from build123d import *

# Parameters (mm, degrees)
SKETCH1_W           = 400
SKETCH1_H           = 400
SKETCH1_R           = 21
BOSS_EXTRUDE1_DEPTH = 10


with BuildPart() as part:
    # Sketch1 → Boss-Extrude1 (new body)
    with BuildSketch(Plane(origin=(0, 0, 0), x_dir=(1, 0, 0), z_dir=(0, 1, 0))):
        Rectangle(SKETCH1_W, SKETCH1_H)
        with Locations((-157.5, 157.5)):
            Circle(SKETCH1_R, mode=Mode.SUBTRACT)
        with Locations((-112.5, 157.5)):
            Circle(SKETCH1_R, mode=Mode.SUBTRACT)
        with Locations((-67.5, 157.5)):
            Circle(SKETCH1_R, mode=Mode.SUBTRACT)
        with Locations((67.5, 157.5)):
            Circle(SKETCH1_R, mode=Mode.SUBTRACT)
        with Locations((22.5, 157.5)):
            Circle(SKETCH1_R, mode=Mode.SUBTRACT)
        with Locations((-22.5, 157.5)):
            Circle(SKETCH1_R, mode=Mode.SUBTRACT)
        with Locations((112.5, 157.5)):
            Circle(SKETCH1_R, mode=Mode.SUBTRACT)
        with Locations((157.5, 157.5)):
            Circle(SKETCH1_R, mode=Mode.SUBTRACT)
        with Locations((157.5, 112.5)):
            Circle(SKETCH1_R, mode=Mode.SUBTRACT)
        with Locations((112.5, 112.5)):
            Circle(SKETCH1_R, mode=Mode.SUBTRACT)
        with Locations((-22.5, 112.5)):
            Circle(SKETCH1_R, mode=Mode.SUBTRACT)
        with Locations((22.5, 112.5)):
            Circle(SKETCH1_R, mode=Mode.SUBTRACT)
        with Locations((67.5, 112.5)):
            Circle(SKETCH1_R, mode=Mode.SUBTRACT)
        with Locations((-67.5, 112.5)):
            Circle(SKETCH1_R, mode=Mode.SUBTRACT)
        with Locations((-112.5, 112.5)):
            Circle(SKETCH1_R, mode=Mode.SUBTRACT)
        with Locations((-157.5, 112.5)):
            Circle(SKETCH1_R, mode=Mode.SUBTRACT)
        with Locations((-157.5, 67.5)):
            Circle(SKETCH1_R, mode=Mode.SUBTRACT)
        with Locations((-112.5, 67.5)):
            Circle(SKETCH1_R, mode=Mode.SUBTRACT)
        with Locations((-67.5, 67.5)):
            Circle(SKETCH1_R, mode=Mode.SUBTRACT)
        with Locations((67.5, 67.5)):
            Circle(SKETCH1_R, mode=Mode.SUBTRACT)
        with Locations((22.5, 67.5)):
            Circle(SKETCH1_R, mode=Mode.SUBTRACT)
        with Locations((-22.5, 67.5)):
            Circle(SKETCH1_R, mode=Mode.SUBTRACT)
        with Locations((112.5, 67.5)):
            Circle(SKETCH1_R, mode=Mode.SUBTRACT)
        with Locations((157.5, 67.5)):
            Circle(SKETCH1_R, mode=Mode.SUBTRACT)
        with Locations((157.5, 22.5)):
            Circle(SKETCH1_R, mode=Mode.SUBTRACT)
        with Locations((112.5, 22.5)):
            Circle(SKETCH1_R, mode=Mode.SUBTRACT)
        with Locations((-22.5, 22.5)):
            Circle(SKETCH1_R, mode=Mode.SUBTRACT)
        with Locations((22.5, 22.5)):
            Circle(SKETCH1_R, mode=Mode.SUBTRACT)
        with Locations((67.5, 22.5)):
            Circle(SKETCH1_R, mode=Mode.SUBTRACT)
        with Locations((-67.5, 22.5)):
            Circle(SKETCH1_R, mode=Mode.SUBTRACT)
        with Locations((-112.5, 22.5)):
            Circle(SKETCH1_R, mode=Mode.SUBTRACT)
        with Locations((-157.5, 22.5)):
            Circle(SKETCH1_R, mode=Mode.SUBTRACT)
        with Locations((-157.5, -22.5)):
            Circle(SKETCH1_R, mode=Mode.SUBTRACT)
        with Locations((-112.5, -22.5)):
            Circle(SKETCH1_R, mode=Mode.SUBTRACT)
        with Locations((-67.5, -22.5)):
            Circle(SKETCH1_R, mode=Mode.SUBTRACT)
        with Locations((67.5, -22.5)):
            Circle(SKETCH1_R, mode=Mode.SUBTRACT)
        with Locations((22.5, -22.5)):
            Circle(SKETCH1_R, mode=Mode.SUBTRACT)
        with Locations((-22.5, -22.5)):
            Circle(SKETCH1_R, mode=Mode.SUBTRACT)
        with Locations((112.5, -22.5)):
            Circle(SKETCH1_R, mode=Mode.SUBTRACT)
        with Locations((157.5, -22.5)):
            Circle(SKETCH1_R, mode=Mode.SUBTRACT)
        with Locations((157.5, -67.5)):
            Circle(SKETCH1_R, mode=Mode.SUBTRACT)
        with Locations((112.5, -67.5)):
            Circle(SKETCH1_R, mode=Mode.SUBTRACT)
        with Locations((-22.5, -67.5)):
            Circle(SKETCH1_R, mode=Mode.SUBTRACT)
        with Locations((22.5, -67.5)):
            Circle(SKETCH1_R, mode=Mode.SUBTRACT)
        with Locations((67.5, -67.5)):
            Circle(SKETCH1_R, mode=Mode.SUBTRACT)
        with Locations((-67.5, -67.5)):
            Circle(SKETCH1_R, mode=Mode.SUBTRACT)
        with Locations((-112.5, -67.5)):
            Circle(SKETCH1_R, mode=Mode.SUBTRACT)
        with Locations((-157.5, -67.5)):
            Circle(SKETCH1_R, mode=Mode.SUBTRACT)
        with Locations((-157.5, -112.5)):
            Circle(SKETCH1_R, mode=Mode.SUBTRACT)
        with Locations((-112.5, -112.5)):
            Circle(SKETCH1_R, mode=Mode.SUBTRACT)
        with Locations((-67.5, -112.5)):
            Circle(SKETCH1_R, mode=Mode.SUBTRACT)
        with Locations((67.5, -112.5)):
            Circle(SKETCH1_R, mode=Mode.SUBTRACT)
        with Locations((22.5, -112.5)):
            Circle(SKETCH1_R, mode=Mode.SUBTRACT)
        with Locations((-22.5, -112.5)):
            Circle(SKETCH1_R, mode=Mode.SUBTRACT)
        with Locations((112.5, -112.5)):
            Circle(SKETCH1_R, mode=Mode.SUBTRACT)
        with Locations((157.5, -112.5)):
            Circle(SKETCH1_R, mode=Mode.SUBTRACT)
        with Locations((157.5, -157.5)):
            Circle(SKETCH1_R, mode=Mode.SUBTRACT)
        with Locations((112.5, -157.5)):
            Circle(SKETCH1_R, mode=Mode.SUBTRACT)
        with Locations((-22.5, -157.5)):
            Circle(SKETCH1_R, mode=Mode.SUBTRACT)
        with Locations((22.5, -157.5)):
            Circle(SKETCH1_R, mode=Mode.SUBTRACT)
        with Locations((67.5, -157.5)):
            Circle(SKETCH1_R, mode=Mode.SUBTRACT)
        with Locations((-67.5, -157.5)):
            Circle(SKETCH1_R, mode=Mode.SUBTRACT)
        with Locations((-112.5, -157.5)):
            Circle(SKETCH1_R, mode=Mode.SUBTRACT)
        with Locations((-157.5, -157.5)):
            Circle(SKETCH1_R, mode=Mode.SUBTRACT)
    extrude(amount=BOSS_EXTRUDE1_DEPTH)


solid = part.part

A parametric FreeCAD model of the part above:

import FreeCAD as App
import Part
import Sketcher


def add_polygon(sketch, points):
    """Adds a closed chain of lines whose ends are joined by coincident constraints."""
    first, n = sketch.GeometryCount, len(points)
    for a, b in zip(points, points[1:] + points[:1]):
        sketch.addGeometry(Part.LineSegment(App.Vector(*a, 0), App.Vector(*b, 0)), False)
    for i in range(n):
        sketch.addConstraint(Sketcher.Constraint("Coincident", first + i, 2, first + (i + 1) % n, 1))

doc = App.newDocument("Part")
body = doc.addObject("PartDesign::Body", "Body")

sketch1 = body.newObject("Sketcher::SketchObject", "Sketch")
sketch1.AttachmentSupport = (doc.getObject("XZ_Plane"), [""])
sketch1.MapMode = "FlatFace"
add_polygon(sketch1, [(-200, -200), (-200, 200), (200, 200), (200, -200)])
sketch1.addGeometry(Part.Circle(App.Vector(-158, 158, 0), App.Vector(0, 0, 1), 21), False)
sketch1.addGeometry(Part.Circle(App.Vector(-112, 158, 0), App.Vector(0, 0, 1), 21), False)
sketch1.addGeometry(Part.Circle(App.Vector(-158, 112, 0), App.Vector(0, 0, 1), 21), False)
sketch1.addGeometry(Part.Circle(App.Vector(-112, 112, 0), App.Vector(0, 0, 1), 21), False)
sketch1.addGeometry(Part.Circle(App.Vector(-68, 158, 0), App.Vector(0, 0, 1), 21), False)
sketch1.addGeometry(Part.Circle(App.Vector(-22, 158, 0), App.Vector(0, 0, 1), 21), False)
sketch1.addGeometry(Part.Circle(App.Vector(-68, 112, 0), App.Vector(0, 0, 1), 21), False)
sketch1.addGeometry(Part.Circle(App.Vector(-22, 112, 0), App.Vector(0, 0, 1), 21), False)
sketch1.addGeometry(Part.Circle(App.Vector(-158, 68, 0), App.Vector(0, 0, 1), 21), False)
sketch1.addGeometry(Part.Circle(App.Vector(-112, 68, 0), App.Vector(0, 0, 1), 21), False)
sketch1.addGeometry(Part.Circle(App.Vector(-158, 22, 0), App.Vector(0, 0, 1), 21), False)
sketch1.addGeometry(Part.Circle(App.Vector(-112, 22, 0), App.Vector(0, 0, 1), 21), False)
sketch1.addGeometry(Part.Circle(App.Vector(-68, 68, 0), App.Vector(0, 0, 1), 21), False)
sketch1.addGeometry(Part.Circle(App.Vector(-22, 68, 0), App.Vector(0, 0, 1), 21), False)
sketch1.addGeometry(Part.Circle(App.Vector(-68, 22, 0), App.Vector(0, 0, 1), 21), False)
sketch1.addGeometry(Part.Circle(App.Vector(-22, 22, 0), App.Vector(0, 0, 1), 21), False)
sketch1.addGeometry(Part.Circle(App.Vector(22, 158, 0), App.Vector(0, 0, 1), 21), False)
sketch1.addGeometry(Part.Circle(App.Vector(68, 158, 0), App.Vector(0, 0, 1), 21), False)
sketch1.addGeometry(Part.Circle(App.Vector(22, 112, 0), App.Vector(0, 0, 1), 21), False)
sketch1.addGeometry(Part.Circle(App.Vector(68, 112, 0), App.Vector(0, 0, 1), 21), False)
sketch1.addGeometry(Part.Circle(App.Vector(112, 158, 0), App.Vector(0, 0, 1), 21), False)
sketch1.addGeometry(Part.Circle(App.Vector(158, 158, 0), App.Vector(0, 0, 1), 21), False)
sketch1.addGeometry(Part.Circle(App.Vector(112, 112, 0), App.Vector(0, 0, 1), 21), False)
sketch1.addGeometry(Part.Circle(App.Vector(158, 112, 0), App.Vector(0, 0, 1), 21), False)
sketch1.addGeometry(Part.Circle(App.Vector(22, 68, 0), App.Vector(0, 0, 1), 21), False)
sketch1.addGeometry(Part.Circle(App.Vector(68, 68, 0), App.Vector(0, 0, 1), 21), False)
sketch1.addGeometry(Part.Circle(App.Vector(22, 22, 0), App.Vector(0, 0, 1), 21), False)
sketch1.addGeometry(Part.Circle(App.Vector(68, 22, 0), App.Vector(0, 0, 1), 21), False)
sketch1.addGeometry(Part.Circle(App.Vector(112, 68, 0), App.Vector(0, 0, 1), 21), False)
sketch1.addGeometry(Part.Circle(App.Vector(158, 68, 0), App.Vector(0, 0, 1), 21), False)
sketch1.addGeometry(Part.Circle(App.Vector(112, 22, 0), App.Vector(0, 0, 1), 21), False)
sketch1.addGeometry(Part.Circle(App.Vector(158, 22, 0), App.Vector(0, 0, 1), 21), False)
sketch1.addGeometry(Part.Circle(App.Vector(-158, -22, 0), App.Vector(0, 0, 1), 21), False)
sketch1.addGeometry(Part.Circle(App.Vector(-112, -22, 0), App.Vector(0, 0, 1), 21), False)
sketch1.addGeometry(Part.Circle(App.Vector(-158, -68, 0), App.Vector(0, 0, 1), 21), False)
sketch1.addGeometry(Part.Circle(App.Vector(-112, -68, 0), App.Vector(0, 0, 1), 21), False)
sketch1.addGeometry(Part.Circle(App.Vector(-68, -22, 0), App.Vector(0, 0, 1), 21), False)
sketch1.addGeometry(Part.Circle(App.Vector(-22, -22, 0), App.Vector(0, 0, 1), 21), False)
sketch1.addGeometry(Part.Circle(App.Vector(-68, -68, 0), App.Vector(0, 0, 1), 21), False)
sketch1.addGeometry(Part.Circle(App.Vector(-22, -68, 0), App.Vector(0, 0, 1), 21), False)
sketch1.addGeometry(Part.Circle(App.Vector(-158, -112, 0), App.Vector(0, 0, 1), 21), False)
sketch1.addGeometry(Part.Circle(App.Vector(-112, -112, 0), App.Vector(0, 0, 1), 21), False)
sketch1.addGeometry(Part.Circle(App.Vector(-158, -158, 0), App.Vector(0, 0, 1), 21), False)
sketch1.addGeometry(Part.Circle(App.Vector(-112, -158, 0), App.Vector(0, 0, 1), 21), False)
sketch1.addGeometry(Part.Circle(App.Vector(-68, -112, 0), App.Vector(0, 0, 1), 21), False)
sketch1.addGeometry(Part.Circle(App.Vector(-22, -112, 0), App.Vector(0, 0, 1), 21), False)
sketch1.addGeometry(Part.Circle(App.Vector(-68, -158, 0), App.Vector(0, 0, 1), 21), False)
sketch1.addGeometry(Part.Circle(App.Vector(-22, -158, 0), App.Vector(0, 0, 1), 21), False)
sketch1.addGeometry(Part.Circle(App.Vector(22, -22, 0), App.Vector(0, 0, 1), 21), False)
sketch1.addGeometry(Part.Circle(App.Vector(68, -22, 0), App.Vector(0, 0, 1), 21), False)
sketch1.addGeometry(Part.Circle(App.Vector(22, -68, 0), App.Vector(0, 0, 1), 21), False)
sketch1.addGeometry(Part.Circle(App.Vector(68, -68, 0), App.Vector(0, 0, 1), 21), False)
sketch1.addGeometry(Part.Circle(App.Vector(112, -22, 0), App.Vector(0, 0, 1), 21), False)
sketch1.addGeometry(Part.Circle(App.Vector(158, -22, 0), App.Vector(0, 0, 1), 21), False)
sketch1.addGeometry(Part.Circle(App.Vector(112, -68, 0), App.Vector(0, 0, 1), 21), False)
sketch1.addGeometry(Part.Circle(App.Vector(158, -68, 0), App.Vector(0, 0, 1), 21), False)
sketch1.addGeometry(Part.Circle(App.Vector(22, -112, 0), App.Vector(0, 0, 1), 21), False)
sketch1.addGeometry(Part.Circle(App.Vector(68, -112, 0), App.Vector(0, 0, 1), 21), False)
sketch1.addGeometry(Part.Circle(App.Vector(22, -158, 0), App.Vector(0, 0, 1), 21), False)
sketch1.addGeometry(Part.Circle(App.Vector(68, -158, 0), App.Vector(0, 0, 1), 21), False)
sketch1.addGeometry(Part.Circle(App.Vector(112, -112, 0), App.Vector(0, 0, 1), 21), False)
sketch1.addGeometry(Part.Circle(App.Vector(158, -112, 0), App.Vector(0, 0, 1), 21), False)
sketch1.addGeometry(Part.Circle(App.Vector(112, -158, 0), App.Vector(0, 0, 1), 21), False)
sketch1.addGeometry(Part.Circle(App.Vector(158, -158, 0), App.Vector(0, 0, 1), 21), False)
sketch1.addConstraint(Sketcher.Constraint("Vertical", 0))
sketch1.addConstraint(Sketcher.Constraint("Horizontal", 1))
sketch1.addConstraint(Sketcher.Constraint("Vertical", 2))
sketch1.addConstraint(Sketcher.Constraint("Horizontal", 3))
sketch1.addConstraint(Sketcher.Constraint("Equal", 4, 5))
sketch1.addConstraint(Sketcher.Constraint("Equal", 5, 6))
sketch1.addConstraint(Sketcher.Constraint("Equal", 6, 7))
sketch1.addConstraint(Sketcher.Constraint("Equal", 7, 8))
sketch1.addConstraint(Sketcher.Constraint("Equal", 8, 9))
sketch1.addConstraint(Sketcher.Constraint("Equal", 9, 10))
sketch1.addConstraint(Sketcher.Constraint("Equal", 10, 11))
sketch1.addConstraint(Sketcher.Constraint("Equal", 11, 12))
sketch1.addConstraint(Sketcher.Constraint("Equal", 12, 13))
sketch1.addConstraint(Sketcher.Constraint("Equal", 13, 14))
sketch1.addConstraint(Sketcher.Constraint("Equal", 14, 15))
sketch1.addConstraint(Sketcher.Constraint("Equal", 15, 16))
sketch1.addConstraint(Sketcher.Constraint("Equal", 16, 17))
sketch1.addConstraint(Sketcher.Constraint("Equal", 17, 18))
sketch1.addConstraint(Sketcher.Constraint("Equal", 18, 19))
sketch1.addConstraint(Sketcher.Constraint("Equal", 19, 20))
sketch1.addConstraint(Sketcher.Constraint("Equal", 20, 21))
sketch1.addConstraint(Sketcher.Constraint("Equal", 21, 22))
sketch1.addConstraint(Sketcher.Constraint("Equal", 22, 23))
sketch1.addConstraint(Sketcher.Constraint("Equal", 23, 24))
sketch1.addConstraint(Sketcher.Constraint("Equal", 24, 25))
sketch1.addConstraint(Sketcher.Constraint("Equal", 25, 26))
sketch1.addConstraint(Sketcher.Constraint("Equal", 26, 27))
sketch1.addConstraint(Sketcher.Constraint("Equal", 27, 28))
sketch1.addConstraint(Sketcher.Constraint("Equal", 28, 29))
sketch1.addConstraint(Sketcher.Constraint("Equal", 29, 30))
sketch1.addConstraint(Sketcher.Constraint("Equal", 30, 31))
sketch1.addConstraint(Sketcher.Constraint("Equal", 31, 32))
sketch1.addConstraint(Sketcher.Constraint("Equal", 32, 33))
sketch1.addConstraint(Sketcher.Constraint("Equal", 33, 34))
sketch1.addConstraint(Sketcher.Constraint("Equal", 34, 35))
sketch1.addConstraint(Sketcher.Constraint("Equal", 35, 36))
sketch1.addConstraint(Sketcher.Constraint("Equal", 36, 37))
sketch1.addConstraint(Sketcher.Constraint("Equal", 37, 38))
sketch1.addConstraint(Sketcher.Constraint("Equal", 38, 39))
sketch1.addConstraint(Sketcher.Constraint("Equal", 39, 40))
sketch1.addConstraint(Sketcher.Constraint("Equal", 40, 41))
sketch1.addConstraint(Sketcher.Constraint("Equal", 41, 42))
sketch1.addConstraint(Sketcher.Constraint("Equal", 42, 43))
sketch1.addConstraint(Sketcher.Constraint("Equal", 43, 44))
sketch1.addConstraint(Sketcher.Constraint("Equal", 44, 45))
sketch1.addConstraint(Sketcher.Constraint("Equal", 45, 46))
sketch1.addConstraint(Sketcher.Constraint("Equal", 46, 47))
sketch1.addConstraint(Sketcher.Constraint("Equal", 47, 48))
sketch1.addConstraint(Sketcher.Constraint("Equal", 48, 49))
sketch1.addConstraint(Sketcher.Constraint("Equal", 49, 50))
sketch1.addConstraint(Sketcher.Constraint("Equal", 50, 51))
sketch1.addConstraint(Sketcher.Constraint("Equal", 51, 52))
sketch1.addConstraint(Sketcher.Constraint("Equal", 52, 53))
sketch1.addConstraint(Sketcher.Constraint("Equal", 53, 54))
sketch1.addConstraint(Sketcher.Constraint("Equal", 54, 55))
sketch1.addConstraint(Sketcher.Constraint("Equal", 55, 56))
sketch1.addConstraint(Sketcher.Constraint("Equal", 56, 57))
sketch1.addConstraint(Sketcher.Constraint("Equal", 57, 58))
sketch1.addConstraint(Sketcher.Constraint("Equal", 58, 59))
sketch1.addConstraint(Sketcher.Constraint("Equal", 59, 60))
sketch1.addConstraint(Sketcher.Constraint("Equal", 60, 61))
sketch1.addConstraint(Sketcher.Constraint("Equal", 61, 62))
sketch1.addConstraint(Sketcher.Constraint("Equal", 62, 63))
sketch1.addConstraint(Sketcher.Constraint("Equal", 63, 64))
sketch1.addConstraint(Sketcher.Constraint("Equal", 64, 65))
sketch1.addConstraint(Sketcher.Constraint("Equal", 65, 66))
sketch1.addConstraint(Sketcher.Constraint("Equal", 66, 67))
sketch1.addConstraint(Sketcher.Constraint("Symmetric", 35, 3, 36, 3, -1, 1))
sketch1.addConstraint(Sketcher.Constraint("Symmetric", 34, 3, 37, 3, -1, 1))
sketch1.addConstraint(Sketcher.Constraint("Symmetric", 33, 3, 38, 3, -1, 1))
sketch1.addConstraint(Sketcher.Constraint("Symmetric", 32, 3, 39, 3, -1, 1))
sketch1.addConstraint(Sketcher.Constraint("Symmetric", 31, 3, 40, 3, -1, 1))
sketch1.addConstraint(Sketcher.Constraint("Symmetric", 30, 3, 41, 3, -1, 1))
sketch1.addConstraint(Sketcher.Constraint("Symmetric", 29, 3, 42, 3, -1, 1))
sketch1.addConstraint(Sketcher.Constraint("Symmetric", 28, 3, 43, 3, -1, 1))
sketch1.addConstraint(Sketcher.Constraint("Symmetric", 27, 3, 44, 3, -1, 1))
sketch1.addConstraint(Sketcher.Constraint("Symmetric", 26, 3, 45, 3, -1, 1))
sketch1.addConstraint(Sketcher.Constraint("Symmetric", 25, 3, 46, 3, -1, 1))
sketch1.addConstraint(Sketcher.Constraint("Symmetric", 24, 3, 47, 3, -1, 1))
sketch1.addConstraint(Sketcher.Constraint("Symmetric", 23, 3, 48, 3, -1, 1))
sketch1.addConstraint(Sketcher.Constraint("Symmetric", 22, 3, 49, 3, -1, 1))
sketch1.addConstraint(Sketcher.Constraint("Symmetric", 21, 3, 50, 3, -1, 1))
sketch1.addConstraint(Sketcher.Constraint("Symmetric", 20, 3, 51, 3, -1, 1))
sketch1.addConstraint(Sketcher.Constraint("Symmetric", 19, 3, 52, 3, -1, 1))
sketch1.addConstraint(Sketcher.Constraint("Symmetric", 18, 3, 53, 3, -1, 1))
sketch1.addConstraint(Sketcher.Constraint("Symmetric", 17, 3, 54, 3, -1, 1))
sketch1.addConstraint(Sketcher.Constraint("Symmetric", 16, 3, 55, 3, -1, 1))
sketch1.addConstraint(Sketcher.Constraint("Symmetric", 15, 3, 56, 3, -1, 1))
sketch1.addConstraint(Sketcher.Constraint("Symmetric", 14, 3, 57, 3, -1, 1))
sketch1.addConstraint(Sketcher.Constraint("Symmetric", 13, 3, 58, 3, -1, 1))
sketch1.addConstraint(Sketcher.Constraint("Symmetric", 12, 3, 59, 3, -1, 1))
sketch1.addConstraint(Sketcher.Constraint("Symmetric", 11, 3, 60, 3, -1, 1))
sketch1.addConstraint(Sketcher.Constraint("Symmetric", 10, 3, 61, 3, -1, 1))
sketch1.addConstraint(Sketcher.Constraint("Symmetric", 9, 3, 62, 3, -1, 1))
sketch1.addConstraint(Sketcher.Constraint("Symmetric", 8, 3, 63, 3, -1, 1))
sketch1.addConstraint(Sketcher.Constraint("Symmetric", 7, 3, 64, 3, -1, 1))
sketch1.addConstraint(Sketcher.Constraint("Symmetric", 6, 3, 65, 3, -1, 1))
sketch1.addConstraint(Sketcher.Constraint("Symmetric", 5, 3, 66, 3, -1, 1))
sketch1.addConstraint(Sketcher.Constraint("Symmetric", 4, 3, 67, 3, -1, 1))
sketch1.addConstraint(Sketcher.Constraint("Symmetric", 0, 2, 2, 2, -1, 1))
sketch1.addConstraint(Sketcher.Constraint("Symmetric", 9, 3, 20, 3, -2))
sketch1.addConstraint(Sketcher.Constraint("Symmetric", 8, 3, 21, 3, -2))
sketch1.addConstraint(Sketcher.Constraint("Symmetric", 11, 3, 22, 3, -2))
sketch1.addConstraint(Sketcher.Constraint("Symmetric", 10, 3, 23, 3, -2))
sketch1.addConstraint(Sketcher.Constraint("Symmetric", 5, 3, 24, 3, -2))
sketch1.addConstraint(Sketcher.Constraint("Symmetric", 4, 3, 25, 3, -2))
sketch1.addConstraint(Sketcher.Constraint("Symmetric", 7, 3, 26, 3, -2))
sketch1.addConstraint(Sketcher.Constraint("Symmetric", 6, 3, 27, 3, -2))
sketch1.addConstraint(Sketcher.Constraint("Symmetric", 17, 3, 28, 3, -2))
sketch1.addConstraint(Sketcher.Constraint("Symmetric", 16, 3, 29, 3, -2))
sketch1.addConstraint(Sketcher.Constraint("Symmetric", 19, 3, 30, 3, -2))
sketch1.addConstraint(Sketcher.Constraint("Symmetric", 18, 3, 31, 3, -2))
sketch1.addConstraint(Sketcher.Constraint("Symmetric", 13, 3, 32, 3, -2))
sketch1.addConstraint(Sketcher.Constraint("Symmetric", 12, 3, 33, 3, -2))
sketch1.addConstraint(Sketcher.Constraint("Symmetric", 15, 3, 34, 3, -2))
sketch1.addConstraint(Sketcher.Constraint("Symmetric", 14, 3, 35, 3, -2))
sketch1.addConstraint(Sketcher.Constraint("Horizontal", 4, 3, 5, 3))
sketch1.addConstraint(Sketcher.Constraint("Horizontal", 6, 3, 7, 3))
sketch1.addConstraint(Sketcher.Constraint("Horizontal", 5, 3, 8, 3))
sketch1.addConstraint(Sketcher.Constraint("Horizontal", 8, 3, 9, 3))
sketch1.addConstraint(Sketcher.Constraint("Horizontal", 7, 3, 10, 3))
sketch1.addConstraint(Sketcher.Constraint("Horizontal", 10, 3, 11, 3))
sketch1.addConstraint(Sketcher.Constraint("Horizontal", 12, 3, 13, 3))
sketch1.addConstraint(Sketcher.Constraint("Horizontal", 14, 3, 15, 3))
sketch1.addConstraint(Sketcher.Constraint("Horizontal", 13, 3, 16, 3))
sketch1.addConstraint(Sketcher.Constraint("Horizontal", 16, 3, 17, 3))
sketch1.addConstraint(Sketcher.Constraint("Horizontal", 15, 3, 18, 3))
sketch1.addConstraint(Sketcher.Constraint("Horizontal", 18, 3, 19, 3))
sketch1.addConstraint(Sketcher.Constraint("Vertical", 4, 3, 6, 3))
sketch1.addConstraint(Sketcher.Constraint("Vertical", 5, 3, 7, 3))
sketch1.addConstraint(Sketcher.Constraint("Vertical", 8, 3, 10, 3))
sketch1.addConstraint(Sketcher.Constraint("Vertical", 9, 3, 11, 3))
sketch1.addConstraint(Sketcher.Constraint("Vertical", 6, 3, 12, 3))
sketch1.addConstraint(Sketcher.Constraint("Vertical", 7, 3, 13, 3))
sketch1.addConstraint(Sketcher.Constraint("Vertical", 12, 3, 14, 3))
sketch1.addConstraint(Sketcher.Constraint("Vertical", 13, 3, 15, 3))
sketch1.addConstraint(Sketcher.Constraint("Vertical", 10, 3, 16, 3))
sketch1.addConstraint(Sketcher.Constraint("Vertical", 11, 3, 17, 3))
sketch1.addConstraint(Sketcher.Constraint("Vertical", 16, 3, 18, 3))
sketch1.addConstraint(Sketcher.Constraint("Vertical", 17, 3, 19, 3))
sketch1.addConstraint(Sketcher.Constraint("Equal", 3, 0))
sketch1.addConstraint(Sketcher.Constraint("Diameter", 4, 42.0))
sketch1.addConstraint(Sketcher.Constraint("DistanceX", 1, 1, 1, 2, 400.0))
sketch1.addConstraint(Sketcher.Constraint("DistanceX", 4, 3, -1, 1, 157.5))
sketch1.addConstraint(Sketcher.Constraint("DistanceY", -1, 1, 4, 3, 157.5))
sketch1.addConstraint(Sketcher.Constraint("DistanceX", 5, 3, -1, 1, 112.5))
sketch1.addConstraint(Sketcher.Constraint("DistanceY", -1, 1, 6, 3, 112.5))
sketch1.addConstraint(Sketcher.Constraint("DistanceX", 8, 3, -1, 1, 67.5))
sketch1.addConstraint(Sketcher.Constraint("DistanceX", 9, 3, -1, 1, 22.5))
sketch1.addConstraint(Sketcher.Constraint("DistanceY", -1, 1, 12, 3, 67.5))
sketch1.addConstraint(Sketcher.Constraint("DistanceY", -1, 1, 14, 3, 22.5))
pad1 = body.newObject("PartDesign::Pad", "Pad")
pad1.Profile = sketch1
pad1.Length = 10
pad1.Reversed = True

doc.recompute()
